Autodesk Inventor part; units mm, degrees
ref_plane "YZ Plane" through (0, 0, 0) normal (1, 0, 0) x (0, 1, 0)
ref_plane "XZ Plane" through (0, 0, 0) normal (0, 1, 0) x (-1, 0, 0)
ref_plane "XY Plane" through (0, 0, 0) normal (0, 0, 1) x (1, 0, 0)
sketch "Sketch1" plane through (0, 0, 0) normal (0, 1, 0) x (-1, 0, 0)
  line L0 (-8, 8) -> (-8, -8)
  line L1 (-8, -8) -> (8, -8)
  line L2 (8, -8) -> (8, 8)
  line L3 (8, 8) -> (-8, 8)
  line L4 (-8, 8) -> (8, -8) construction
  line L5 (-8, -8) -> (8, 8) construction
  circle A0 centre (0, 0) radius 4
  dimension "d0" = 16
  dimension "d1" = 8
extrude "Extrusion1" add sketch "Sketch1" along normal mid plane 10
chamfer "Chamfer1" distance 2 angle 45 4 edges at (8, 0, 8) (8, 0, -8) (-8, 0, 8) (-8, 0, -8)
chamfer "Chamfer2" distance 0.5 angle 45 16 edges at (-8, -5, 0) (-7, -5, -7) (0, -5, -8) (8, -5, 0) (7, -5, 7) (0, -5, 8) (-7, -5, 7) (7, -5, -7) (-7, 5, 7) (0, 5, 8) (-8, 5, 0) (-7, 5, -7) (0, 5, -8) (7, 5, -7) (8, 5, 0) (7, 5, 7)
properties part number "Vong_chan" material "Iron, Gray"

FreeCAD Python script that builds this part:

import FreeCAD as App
import Part
import Sketcher
from FreeCAD import Vector


def edges_at(feature, points):
    """Names of the edges that pass closest to the given points."""
    edges = feature.Shape.Edges
    near = lambda p: min(range(len(edges)), key=lambda i: edges[i].distToShape(Part.Vertex(*p))[0])
    return sorted({f"Edge{near(p) + 1}" for p in points})


def add_polygon(sketch, points):
    """Adds a closed chain of lines whose ends are joined by coincident constraints."""
    first, n = sketch.GeometryCount, len(points)
    for a, b in zip(points, points[1:] + points[:1]):
        sketch.addGeometry(Part.LineSegment(App.Vector(*a, 0), App.Vector(*b, 0)), False)
    for i in range(n):
        sketch.addConstraint(Sketcher.Constraint("Coincident", first + i, 2, first + (i + 1) % n, 1))

doc = App.newDocument("Part")
params = doc.addObject("Spreadsheet::Sheet", "Params")
for row, (alias, value) in enumerate([
    ("sketch1_diameter", "8 mm"),
    ("sketch1_width", "16 mm"),
    ("pad1_length", "10 mm"),
    ("chamfer_size", "2 mm"),
    ("chamfer2_size", "0.5 mm"),
], start=1):
    params.set(f"A{row}", alias)
    params.set(f"B{row}", "=" + value)
    params.setAlias(f"B{row}", alias)

body = doc.addObject("PartDesign::Body", "Body")

sketch1 = body.newObject("Sketcher::SketchObject", "Sketch")
sketch1.AttachmentSupport = (doc.getObject("XZ_Plane"), [""])
sketch1.MapMode = "FlatFace"
add_polygon(sketch1, [(-8, 8), (8, 8), (8, -8), (-8, -8)])
sketch1.addGeometry(Part.Circle(Vector(0, 0, 0), Vector(0, 0, 1), 4), False)
sketch1.addConstraint(Sketcher.Constraint("Horizontal", 0))
sketch1.addConstraint(Sketcher.Constraint("Vertical", 1))
sketch1.addConstraint(Sketcher.Constraint("Horizontal", 2))
sketch1.addConstraint(Sketcher.Constraint("Vertical", 3))
sketch1.addConstraint(Sketcher.Constraint("Coincident", 4, 3, -1, 1))
sketch1.addConstraint(Sketcher.Constraint("Symmetric", 0, 2, 2, 2, -1, 1))
sketch1.addConstraint(Sketcher.Constraint("Equal", 2, 1))
sketch1.addConstraint(Sketcher.Constraint("Diameter", 4, 8.0))
sketch1.addConstraint(Sketcher.Constraint("DistanceX", 0, 1, 0, 2, 16.0))
sketch1.setExpression("Constraints[11]", "Params.sketch1_diameter")
sketch1.setExpression("Constraints[12]", "Params.sketch1_width")
pad1 = body.newObject("PartDesign::Pad", "Pad")
pad1.Profile = sketch1
pad1.setExpression("Length", "Params.pad1_length")
pad1.Midplane = True
doc.recompute()

chamfer = body.newObject("PartDesign::Chamfer", "Chamfer")
chamfer.Base = (pad1, edges_at(pad1, [
    (8, 0, 8),
    (8, 0, -8),
    (-8, 0, 8),
    (-8, 0, -8),
]))
chamfer.setExpression("Size", "Params.chamfer_size")
doc.recompute()

chamfer2 = body.newObject("PartDesign::Chamfer", "Chamfer001")
chamfer2.Base = (chamfer, edges_at(chamfer, [
    (-8, -5, 0),
    (-7, -5, -7),
    (0, -5, -8),
    (8, -5, 0),
    (7, -5, 7),
    (0, -5, 8),
    (-7, -5, 7),
    (7, -5, -7),
    (-7, 5, 7),
    (0, 5, 8),
    (-8, 5, 0),
    (-7, 5, -7),
    (0, 5, -8),
    (7, 5, -7),
    (8, 5, 0),
    (7, 5, 7),
]))
chamfer2.setExpression("Size", "Params.chamfer2_size")

doc.recompute()
